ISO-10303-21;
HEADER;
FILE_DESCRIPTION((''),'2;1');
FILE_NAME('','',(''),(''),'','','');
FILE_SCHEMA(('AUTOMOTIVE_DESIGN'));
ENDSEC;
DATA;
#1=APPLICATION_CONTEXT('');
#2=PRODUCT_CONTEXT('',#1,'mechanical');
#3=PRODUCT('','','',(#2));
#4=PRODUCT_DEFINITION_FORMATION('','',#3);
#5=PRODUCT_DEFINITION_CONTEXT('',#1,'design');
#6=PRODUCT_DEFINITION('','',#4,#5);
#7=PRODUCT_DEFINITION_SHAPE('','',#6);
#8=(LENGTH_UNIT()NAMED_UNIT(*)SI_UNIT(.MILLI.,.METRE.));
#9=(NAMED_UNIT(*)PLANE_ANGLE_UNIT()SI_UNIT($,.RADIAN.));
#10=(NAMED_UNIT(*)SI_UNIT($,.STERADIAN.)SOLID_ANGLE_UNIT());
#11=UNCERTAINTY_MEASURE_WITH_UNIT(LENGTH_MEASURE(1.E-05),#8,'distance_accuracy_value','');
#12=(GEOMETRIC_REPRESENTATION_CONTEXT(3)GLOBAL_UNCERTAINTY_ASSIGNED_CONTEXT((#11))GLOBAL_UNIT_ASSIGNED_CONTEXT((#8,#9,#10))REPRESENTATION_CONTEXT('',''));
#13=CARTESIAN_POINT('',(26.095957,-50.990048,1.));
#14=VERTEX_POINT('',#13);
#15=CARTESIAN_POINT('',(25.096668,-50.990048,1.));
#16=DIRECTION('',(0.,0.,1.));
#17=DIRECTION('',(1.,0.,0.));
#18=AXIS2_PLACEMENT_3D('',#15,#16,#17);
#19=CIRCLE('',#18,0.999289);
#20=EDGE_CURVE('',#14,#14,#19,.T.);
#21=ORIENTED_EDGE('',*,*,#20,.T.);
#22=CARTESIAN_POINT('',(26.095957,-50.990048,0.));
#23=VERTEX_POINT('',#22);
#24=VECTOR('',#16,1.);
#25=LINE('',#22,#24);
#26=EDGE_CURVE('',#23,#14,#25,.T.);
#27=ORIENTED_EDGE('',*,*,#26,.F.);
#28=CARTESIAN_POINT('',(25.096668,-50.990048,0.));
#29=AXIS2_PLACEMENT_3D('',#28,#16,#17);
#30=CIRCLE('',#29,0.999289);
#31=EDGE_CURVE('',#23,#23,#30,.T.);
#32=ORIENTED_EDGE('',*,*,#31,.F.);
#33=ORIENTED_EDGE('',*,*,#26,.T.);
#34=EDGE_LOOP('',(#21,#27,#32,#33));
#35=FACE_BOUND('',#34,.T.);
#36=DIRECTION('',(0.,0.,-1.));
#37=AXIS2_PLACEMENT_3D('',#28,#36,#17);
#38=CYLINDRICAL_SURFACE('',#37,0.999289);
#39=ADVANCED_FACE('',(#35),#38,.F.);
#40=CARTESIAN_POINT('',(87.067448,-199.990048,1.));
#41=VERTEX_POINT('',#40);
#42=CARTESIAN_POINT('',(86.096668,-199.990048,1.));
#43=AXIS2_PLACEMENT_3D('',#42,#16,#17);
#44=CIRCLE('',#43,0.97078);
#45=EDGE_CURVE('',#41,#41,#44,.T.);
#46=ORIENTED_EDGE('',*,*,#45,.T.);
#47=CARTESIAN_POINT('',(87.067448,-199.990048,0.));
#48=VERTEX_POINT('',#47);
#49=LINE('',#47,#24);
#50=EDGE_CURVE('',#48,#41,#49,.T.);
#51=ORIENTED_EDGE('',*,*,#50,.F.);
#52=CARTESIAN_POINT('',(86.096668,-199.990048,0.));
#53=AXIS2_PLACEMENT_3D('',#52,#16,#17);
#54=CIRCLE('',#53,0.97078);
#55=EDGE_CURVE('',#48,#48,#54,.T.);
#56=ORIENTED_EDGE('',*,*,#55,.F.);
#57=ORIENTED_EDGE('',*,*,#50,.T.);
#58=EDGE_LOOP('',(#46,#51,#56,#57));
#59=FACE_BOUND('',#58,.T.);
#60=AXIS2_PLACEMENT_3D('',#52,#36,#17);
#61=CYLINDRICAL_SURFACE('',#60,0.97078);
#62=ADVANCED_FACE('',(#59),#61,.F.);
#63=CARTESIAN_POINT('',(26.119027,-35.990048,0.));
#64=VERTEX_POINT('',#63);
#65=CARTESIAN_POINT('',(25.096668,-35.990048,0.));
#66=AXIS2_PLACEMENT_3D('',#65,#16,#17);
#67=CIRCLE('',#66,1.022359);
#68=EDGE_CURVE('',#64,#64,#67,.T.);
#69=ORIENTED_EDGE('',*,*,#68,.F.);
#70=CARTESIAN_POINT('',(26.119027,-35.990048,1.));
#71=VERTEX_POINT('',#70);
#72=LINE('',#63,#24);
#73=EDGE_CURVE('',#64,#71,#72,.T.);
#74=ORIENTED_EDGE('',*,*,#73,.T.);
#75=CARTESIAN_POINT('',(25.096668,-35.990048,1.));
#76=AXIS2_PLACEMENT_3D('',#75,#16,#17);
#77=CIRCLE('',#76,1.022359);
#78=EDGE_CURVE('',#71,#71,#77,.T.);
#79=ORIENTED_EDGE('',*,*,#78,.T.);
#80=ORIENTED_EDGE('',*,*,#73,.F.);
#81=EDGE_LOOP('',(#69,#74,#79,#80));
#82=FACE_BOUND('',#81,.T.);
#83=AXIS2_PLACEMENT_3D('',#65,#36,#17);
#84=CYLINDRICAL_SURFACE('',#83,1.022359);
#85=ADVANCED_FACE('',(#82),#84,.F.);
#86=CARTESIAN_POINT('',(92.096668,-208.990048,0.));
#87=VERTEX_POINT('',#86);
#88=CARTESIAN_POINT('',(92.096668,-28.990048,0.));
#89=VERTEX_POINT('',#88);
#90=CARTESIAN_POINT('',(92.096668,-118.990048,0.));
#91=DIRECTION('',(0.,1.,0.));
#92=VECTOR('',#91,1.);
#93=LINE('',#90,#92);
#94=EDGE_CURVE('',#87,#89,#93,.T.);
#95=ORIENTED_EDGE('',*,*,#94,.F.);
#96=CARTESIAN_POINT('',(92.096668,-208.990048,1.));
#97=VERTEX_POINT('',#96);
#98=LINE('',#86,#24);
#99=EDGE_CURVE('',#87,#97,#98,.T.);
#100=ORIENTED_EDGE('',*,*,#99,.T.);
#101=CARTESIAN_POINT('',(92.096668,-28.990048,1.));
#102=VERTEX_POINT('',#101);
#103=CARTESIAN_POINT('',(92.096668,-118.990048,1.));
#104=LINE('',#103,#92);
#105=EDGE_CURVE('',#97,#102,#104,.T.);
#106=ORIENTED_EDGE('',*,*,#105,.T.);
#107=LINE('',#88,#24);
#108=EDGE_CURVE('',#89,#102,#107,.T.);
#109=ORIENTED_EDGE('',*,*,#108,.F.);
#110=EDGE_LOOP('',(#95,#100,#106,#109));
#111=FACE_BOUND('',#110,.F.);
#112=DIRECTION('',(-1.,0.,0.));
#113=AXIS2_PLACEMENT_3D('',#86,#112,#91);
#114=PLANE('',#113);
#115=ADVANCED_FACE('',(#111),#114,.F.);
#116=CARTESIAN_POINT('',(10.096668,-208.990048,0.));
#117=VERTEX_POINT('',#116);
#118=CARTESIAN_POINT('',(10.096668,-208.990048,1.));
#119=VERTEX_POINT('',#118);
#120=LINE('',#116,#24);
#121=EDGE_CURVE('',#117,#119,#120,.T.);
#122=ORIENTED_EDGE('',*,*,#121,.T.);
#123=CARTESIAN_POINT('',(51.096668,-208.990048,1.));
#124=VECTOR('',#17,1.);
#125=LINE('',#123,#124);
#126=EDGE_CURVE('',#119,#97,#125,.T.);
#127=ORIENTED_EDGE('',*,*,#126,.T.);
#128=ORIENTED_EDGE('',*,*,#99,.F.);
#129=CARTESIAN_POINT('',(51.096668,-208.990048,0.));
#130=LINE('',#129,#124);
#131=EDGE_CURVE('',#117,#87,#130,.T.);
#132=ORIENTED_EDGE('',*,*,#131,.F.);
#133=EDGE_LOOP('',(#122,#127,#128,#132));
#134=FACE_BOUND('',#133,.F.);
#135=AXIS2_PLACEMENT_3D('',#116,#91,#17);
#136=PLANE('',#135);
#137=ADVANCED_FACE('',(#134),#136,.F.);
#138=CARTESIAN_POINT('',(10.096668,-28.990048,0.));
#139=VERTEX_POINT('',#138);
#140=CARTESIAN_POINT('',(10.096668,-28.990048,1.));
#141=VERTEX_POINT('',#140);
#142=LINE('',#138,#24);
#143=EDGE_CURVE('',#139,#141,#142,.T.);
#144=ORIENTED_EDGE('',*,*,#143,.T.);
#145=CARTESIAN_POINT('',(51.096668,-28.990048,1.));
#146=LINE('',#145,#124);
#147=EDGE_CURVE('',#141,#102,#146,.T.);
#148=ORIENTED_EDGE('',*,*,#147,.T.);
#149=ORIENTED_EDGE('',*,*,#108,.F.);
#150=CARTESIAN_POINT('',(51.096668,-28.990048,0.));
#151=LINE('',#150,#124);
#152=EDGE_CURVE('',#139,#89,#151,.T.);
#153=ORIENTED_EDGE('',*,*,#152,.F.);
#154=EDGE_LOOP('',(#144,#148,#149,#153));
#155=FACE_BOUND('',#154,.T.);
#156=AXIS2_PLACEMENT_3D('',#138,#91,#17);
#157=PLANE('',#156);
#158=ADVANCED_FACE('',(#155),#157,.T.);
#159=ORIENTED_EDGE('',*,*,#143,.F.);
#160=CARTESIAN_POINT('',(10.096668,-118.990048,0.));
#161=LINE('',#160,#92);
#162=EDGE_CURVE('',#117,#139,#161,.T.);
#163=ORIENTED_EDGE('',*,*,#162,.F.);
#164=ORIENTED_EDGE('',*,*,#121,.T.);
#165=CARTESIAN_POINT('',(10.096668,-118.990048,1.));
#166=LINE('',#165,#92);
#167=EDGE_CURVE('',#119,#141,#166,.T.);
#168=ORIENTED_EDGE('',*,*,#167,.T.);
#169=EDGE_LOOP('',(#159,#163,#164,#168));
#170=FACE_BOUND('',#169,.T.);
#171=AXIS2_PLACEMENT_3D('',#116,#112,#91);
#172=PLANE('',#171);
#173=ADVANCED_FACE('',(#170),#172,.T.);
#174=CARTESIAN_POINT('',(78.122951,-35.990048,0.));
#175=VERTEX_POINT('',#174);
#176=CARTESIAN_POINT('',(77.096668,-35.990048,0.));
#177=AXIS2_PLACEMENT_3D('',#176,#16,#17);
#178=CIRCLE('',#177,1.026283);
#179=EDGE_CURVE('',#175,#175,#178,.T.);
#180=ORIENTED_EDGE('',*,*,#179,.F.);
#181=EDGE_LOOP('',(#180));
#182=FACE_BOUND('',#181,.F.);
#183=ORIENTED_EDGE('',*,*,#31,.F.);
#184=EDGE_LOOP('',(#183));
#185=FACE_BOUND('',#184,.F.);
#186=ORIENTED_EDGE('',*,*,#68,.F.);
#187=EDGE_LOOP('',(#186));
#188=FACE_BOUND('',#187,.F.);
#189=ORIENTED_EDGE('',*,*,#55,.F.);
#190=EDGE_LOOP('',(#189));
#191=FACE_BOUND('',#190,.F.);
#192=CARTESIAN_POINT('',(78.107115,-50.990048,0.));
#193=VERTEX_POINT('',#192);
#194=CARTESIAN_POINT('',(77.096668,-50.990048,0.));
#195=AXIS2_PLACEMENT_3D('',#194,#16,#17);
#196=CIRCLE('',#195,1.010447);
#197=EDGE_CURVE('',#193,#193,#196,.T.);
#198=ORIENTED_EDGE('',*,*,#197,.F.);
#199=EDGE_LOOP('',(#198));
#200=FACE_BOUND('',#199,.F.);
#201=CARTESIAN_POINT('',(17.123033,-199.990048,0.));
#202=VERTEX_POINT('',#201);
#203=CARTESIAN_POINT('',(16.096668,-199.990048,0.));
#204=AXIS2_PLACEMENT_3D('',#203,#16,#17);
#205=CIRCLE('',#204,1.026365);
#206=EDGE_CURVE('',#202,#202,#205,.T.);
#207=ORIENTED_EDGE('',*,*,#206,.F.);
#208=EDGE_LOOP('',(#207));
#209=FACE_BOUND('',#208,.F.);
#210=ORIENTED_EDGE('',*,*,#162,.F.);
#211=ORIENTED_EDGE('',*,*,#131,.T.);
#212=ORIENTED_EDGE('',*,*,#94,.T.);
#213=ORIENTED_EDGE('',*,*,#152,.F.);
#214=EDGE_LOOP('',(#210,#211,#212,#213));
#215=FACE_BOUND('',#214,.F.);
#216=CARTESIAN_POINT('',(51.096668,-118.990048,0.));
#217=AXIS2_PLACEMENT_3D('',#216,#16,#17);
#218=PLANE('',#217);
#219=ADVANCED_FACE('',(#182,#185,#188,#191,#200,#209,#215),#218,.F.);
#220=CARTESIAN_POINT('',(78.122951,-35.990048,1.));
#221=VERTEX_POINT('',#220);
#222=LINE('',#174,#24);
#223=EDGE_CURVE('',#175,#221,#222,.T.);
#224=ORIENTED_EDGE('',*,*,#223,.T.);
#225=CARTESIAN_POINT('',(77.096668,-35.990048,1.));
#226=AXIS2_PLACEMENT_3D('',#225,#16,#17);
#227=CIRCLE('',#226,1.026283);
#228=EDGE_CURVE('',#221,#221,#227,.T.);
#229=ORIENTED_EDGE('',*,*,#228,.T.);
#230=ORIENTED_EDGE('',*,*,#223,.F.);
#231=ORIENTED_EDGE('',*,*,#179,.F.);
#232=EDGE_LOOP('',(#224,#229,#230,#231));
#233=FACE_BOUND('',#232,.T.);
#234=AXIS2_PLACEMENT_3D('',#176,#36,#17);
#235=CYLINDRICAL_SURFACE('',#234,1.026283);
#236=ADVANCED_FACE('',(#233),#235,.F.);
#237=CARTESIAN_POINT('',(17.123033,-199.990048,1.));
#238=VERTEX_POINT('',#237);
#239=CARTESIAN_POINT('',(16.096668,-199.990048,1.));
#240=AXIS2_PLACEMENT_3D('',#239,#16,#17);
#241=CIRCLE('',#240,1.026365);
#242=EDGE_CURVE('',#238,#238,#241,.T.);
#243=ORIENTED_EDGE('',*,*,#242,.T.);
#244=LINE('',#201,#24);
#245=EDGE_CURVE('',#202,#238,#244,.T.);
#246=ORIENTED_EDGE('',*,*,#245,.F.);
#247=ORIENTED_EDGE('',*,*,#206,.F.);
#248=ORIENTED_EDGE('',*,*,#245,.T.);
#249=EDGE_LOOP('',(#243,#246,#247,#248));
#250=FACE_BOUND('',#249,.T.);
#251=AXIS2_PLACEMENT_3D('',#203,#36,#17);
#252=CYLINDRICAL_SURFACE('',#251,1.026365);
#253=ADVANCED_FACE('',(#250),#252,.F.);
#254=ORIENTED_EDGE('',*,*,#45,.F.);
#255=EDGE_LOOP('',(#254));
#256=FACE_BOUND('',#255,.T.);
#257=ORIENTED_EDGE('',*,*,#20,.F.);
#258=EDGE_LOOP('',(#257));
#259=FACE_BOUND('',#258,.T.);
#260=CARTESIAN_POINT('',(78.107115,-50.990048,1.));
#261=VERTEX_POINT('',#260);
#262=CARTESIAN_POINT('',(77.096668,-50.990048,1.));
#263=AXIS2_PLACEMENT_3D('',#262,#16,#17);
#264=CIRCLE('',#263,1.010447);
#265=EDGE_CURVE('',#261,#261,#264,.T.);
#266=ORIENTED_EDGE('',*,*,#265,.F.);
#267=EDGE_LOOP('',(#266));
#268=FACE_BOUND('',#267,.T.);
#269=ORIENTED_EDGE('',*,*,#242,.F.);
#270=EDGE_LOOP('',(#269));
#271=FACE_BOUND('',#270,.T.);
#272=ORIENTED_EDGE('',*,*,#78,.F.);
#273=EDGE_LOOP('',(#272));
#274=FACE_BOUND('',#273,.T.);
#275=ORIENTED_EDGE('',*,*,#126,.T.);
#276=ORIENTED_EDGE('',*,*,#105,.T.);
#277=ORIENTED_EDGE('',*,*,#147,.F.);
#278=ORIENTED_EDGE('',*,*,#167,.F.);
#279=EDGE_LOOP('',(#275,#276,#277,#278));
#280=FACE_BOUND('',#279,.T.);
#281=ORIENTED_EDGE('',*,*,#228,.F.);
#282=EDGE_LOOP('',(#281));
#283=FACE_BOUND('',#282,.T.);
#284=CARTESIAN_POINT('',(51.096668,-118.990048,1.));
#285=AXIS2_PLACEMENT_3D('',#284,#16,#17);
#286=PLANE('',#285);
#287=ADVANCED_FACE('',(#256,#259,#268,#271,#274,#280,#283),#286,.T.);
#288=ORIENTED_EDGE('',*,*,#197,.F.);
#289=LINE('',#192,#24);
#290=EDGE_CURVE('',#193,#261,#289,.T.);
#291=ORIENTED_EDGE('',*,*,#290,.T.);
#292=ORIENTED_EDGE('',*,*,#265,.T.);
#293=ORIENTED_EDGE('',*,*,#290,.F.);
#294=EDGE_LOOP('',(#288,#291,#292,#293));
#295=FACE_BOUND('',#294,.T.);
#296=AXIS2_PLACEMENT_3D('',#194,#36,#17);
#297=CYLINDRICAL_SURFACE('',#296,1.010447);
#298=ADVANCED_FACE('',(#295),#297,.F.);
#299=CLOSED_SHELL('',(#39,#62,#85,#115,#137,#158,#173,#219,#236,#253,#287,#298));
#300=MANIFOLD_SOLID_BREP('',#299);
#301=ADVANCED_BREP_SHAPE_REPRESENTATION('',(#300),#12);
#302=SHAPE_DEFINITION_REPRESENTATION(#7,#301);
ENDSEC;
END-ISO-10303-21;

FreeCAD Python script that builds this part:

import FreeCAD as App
import Part
import Sketcher


def add_polygon(sketch, points):
    """Adds a closed chain of lines whose ends are joined by coincident constraints."""
    first, n = sketch.GeometryCount, len(points)
    for a, b in zip(points, points[1:] + points[:1]):
        sketch.addGeometry(Part.LineSegment(App.Vector(*a, 0), App.Vector(*b, 0)), False)
    for i in range(n):
        sketch.addConstraint(Sketcher.Constraint("Coincident", first + i, 2, first + (i + 1) % n, 1))

doc = App.newDocument("Part")
body = doc.addObject("PartDesign::Body", "Body")

# Sketch on XY plane
sketch1 = doc.addObject("Sketcher::SketchObject", "Sketch")
body.addObject(sketch1)
sketch1.AttachmentSupport = (doc.XY_Plane, [""])
sketch1.MapMode = "FlatFace"
add_polygon(sketch1, [(10.096668, -28.990048), (10.096668, -208.990048), (92.096668, -208.990048), (92.096668, -28.990048)])  # lines 0-3
sketch1.addGeometry(Part.Circle(App.Vector(16.096668, -199.990048, 0), App.Vector(0, 0, 1), 1.026365), False)  # 4
sketch1.addGeometry(Part.Circle(App.Vector(86.096668, -199.990048, 0), App.Vector(0, 0, 1), 0.97078), False)  # 5
sketch1.addGeometry(Part.Circle(App.Vector(25.096668, -50.990048, 0), App.Vector(0, 0, 1), 0.999289), False)  # 6
sketch1.addGeometry(Part.Circle(App.Vector(25.096668, -35.990048, 0), App.Vector(0, 0, 1), 1.022359), False)  # 7
sketch1.addGeometry(Part.Circle(App.Vector(77.096668, -50.990048, 0), App.Vector(0, 0, 1), 1.010447), False)  # 8
sketch1.addGeometry(Part.Circle(App.Vector(77.096668, -35.990048, 0), App.Vector(0, 0, 1), 1.026283), False)  # 9
sketch1.addConstraint([
    Sketcher.Constraint("Vertical", 0),
    Sketcher.Constraint("Horizontal", 1),
    Sketcher.Constraint("Vertical", 2),
    Sketcher.Constraint("Horizontal", 3),
    Sketcher.Constraint("Horizontal", 4, 3, 5, 3),
    Sketcher.Constraint("Horizontal", 6, 3, 8, 3),
    Sketcher.Constraint("Horizontal", 7, 3, 9, 3),
    Sketcher.Constraint("Vertical", 6, 3, 7, 3),
    Sketcher.Constraint("Vertical", 8, 3, 9, 3),
    Sketcher.Constraint("DistanceX", 1, 1, 1, 2, 82.0),
    Sketcher.Constraint("DistanceY", 0, 2, 0, 1, 180.0),
    Sketcher.Constraint("DistanceX", 4, 3, 5, 3, 70.0),
    Sketcher.Constraint("DistanceX", 4, 3, 6, 3, 9.0),
    Sketcher.Constraint("DistanceY", 4, 3, 6, 3, 149.0),
    Sketcher.Constraint("DistanceY", 6, 3, 7, 3, 15.0),
    Sketcher.Constraint("DistanceX", 6, 3, 8, 3, 52.0),
    Sketcher.Constraint("DistanceX", 0, 2, 4, 3, 6.0),
    Sketcher.Constraint("DistanceY", 0, 2, 4, 3, 9.0),
    Sketcher.Constraint("Diameter", 4, 2.05273),
    Sketcher.Constraint("Diameter", 5, 1.94156),
    Sketcher.Constraint("Diameter", 7, 2.044718),
    Sketcher.Constraint("Diameter", 6, 1.998578),
    Sketcher.Constraint("Diameter", 8, 2.020894),
    Sketcher.Constraint("Diameter", 9, 2.052566),
    Sketcher.Constraint("DistanceX", -1, 1, 4, 3, 16.096668),
    Sketcher.Constraint("DistanceY", 4, 3, -1, 1, 199.990048),
])
pad1 = doc.addObject("PartDesign::Pad", "Pad")
body.addObject(pad1)
pad1.Profile = sketch1
pad1.Length = 1

doc.recompute()
